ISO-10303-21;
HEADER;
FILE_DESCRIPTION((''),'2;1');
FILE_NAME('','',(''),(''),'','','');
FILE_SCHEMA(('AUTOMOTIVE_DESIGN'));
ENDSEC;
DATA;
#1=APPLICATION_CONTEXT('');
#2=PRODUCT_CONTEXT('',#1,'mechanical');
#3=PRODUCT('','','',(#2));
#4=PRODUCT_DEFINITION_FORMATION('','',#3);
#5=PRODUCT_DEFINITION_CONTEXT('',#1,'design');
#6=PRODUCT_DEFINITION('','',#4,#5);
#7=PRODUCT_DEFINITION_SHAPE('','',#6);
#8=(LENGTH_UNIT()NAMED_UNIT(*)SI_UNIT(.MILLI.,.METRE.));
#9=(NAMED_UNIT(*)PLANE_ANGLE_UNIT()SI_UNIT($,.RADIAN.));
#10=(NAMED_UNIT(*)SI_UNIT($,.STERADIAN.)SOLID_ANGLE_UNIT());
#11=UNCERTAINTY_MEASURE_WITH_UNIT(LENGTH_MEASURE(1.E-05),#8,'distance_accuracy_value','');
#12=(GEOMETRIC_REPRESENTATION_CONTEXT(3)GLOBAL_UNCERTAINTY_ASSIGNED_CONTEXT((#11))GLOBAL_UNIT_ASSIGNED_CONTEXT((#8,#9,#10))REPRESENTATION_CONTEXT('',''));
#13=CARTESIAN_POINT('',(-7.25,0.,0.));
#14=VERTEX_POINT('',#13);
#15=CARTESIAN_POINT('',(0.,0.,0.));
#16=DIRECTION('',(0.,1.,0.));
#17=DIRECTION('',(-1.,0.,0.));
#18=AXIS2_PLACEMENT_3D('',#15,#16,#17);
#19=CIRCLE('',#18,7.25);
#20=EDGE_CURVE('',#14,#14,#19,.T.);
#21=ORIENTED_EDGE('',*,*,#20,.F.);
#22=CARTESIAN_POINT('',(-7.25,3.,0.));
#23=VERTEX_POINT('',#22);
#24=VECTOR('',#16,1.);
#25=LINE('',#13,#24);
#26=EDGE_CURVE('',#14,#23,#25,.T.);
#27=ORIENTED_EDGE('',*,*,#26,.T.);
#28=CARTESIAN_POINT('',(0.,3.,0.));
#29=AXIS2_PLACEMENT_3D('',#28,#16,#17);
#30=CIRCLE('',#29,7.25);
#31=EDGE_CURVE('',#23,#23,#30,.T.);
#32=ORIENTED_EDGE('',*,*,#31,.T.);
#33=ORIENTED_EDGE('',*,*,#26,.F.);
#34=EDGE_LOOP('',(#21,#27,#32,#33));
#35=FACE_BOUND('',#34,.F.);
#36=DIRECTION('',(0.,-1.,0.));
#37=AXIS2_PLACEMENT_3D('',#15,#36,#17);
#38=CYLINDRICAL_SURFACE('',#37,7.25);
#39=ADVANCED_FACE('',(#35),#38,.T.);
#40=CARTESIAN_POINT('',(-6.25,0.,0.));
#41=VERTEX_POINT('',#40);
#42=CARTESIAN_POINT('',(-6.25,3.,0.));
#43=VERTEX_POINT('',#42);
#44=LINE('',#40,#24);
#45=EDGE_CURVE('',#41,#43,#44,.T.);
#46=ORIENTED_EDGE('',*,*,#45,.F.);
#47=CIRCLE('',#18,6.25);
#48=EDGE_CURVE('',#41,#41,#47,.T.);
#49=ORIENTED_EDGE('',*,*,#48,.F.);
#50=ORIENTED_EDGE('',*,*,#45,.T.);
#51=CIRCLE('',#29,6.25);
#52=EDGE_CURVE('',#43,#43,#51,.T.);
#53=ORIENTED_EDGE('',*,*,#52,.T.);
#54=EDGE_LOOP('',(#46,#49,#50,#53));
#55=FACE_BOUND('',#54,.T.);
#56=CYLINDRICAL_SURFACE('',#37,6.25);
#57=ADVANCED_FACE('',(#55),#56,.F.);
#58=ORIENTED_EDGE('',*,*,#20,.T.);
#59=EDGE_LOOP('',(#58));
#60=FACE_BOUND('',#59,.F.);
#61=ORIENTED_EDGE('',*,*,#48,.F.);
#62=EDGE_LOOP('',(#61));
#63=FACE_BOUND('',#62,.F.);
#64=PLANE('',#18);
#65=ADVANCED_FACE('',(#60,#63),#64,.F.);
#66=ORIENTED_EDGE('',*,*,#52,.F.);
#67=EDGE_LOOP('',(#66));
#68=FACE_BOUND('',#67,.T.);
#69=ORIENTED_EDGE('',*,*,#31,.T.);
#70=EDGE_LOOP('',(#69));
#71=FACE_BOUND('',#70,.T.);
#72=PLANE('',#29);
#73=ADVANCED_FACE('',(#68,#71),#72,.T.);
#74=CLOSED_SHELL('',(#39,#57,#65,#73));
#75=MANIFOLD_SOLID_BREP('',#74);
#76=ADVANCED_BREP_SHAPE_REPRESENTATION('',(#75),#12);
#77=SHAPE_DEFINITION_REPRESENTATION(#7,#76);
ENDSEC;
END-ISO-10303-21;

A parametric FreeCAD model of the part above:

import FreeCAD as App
import Part
import Sketcher

V = App.Vector

doc = App.newDocument("Part")
body = doc.addObject("PartDesign::Body", "Body")

# Sketch on XZ plane
sketch1 = body.newObject("Sketcher::SketchObject", "Sketch")
sketch1.AttachmentSupport = (doc.getObject("XZ_Plane"), [""])
sketch1.MapMode = "FlatFace"
sketch1.addGeometry([
    Part.Circle(V(0, 0, 0), V(0, 0, 1), 7),
    Part.Circle(V(0, 0, 0), V(0, 0, 1), 6),
], False)
sketch1.addConstraint([
    Sketcher.Constraint("Coincident", 0, 3, -1, 1),
    Sketcher.Constraint("Coincident", 1, 3, -1, 1),
    Sketcher.Constraint("Diameter", 0, 14.5),
    Sketcher.Constraint("Diameter", 1, 12.5),
])
pad1 = body.newObject("PartDesign::Pad", "Pad")
pad1.Profile = sketch1
pad1.Length = 3
pad1.Reversed = True

doc.recompute()
